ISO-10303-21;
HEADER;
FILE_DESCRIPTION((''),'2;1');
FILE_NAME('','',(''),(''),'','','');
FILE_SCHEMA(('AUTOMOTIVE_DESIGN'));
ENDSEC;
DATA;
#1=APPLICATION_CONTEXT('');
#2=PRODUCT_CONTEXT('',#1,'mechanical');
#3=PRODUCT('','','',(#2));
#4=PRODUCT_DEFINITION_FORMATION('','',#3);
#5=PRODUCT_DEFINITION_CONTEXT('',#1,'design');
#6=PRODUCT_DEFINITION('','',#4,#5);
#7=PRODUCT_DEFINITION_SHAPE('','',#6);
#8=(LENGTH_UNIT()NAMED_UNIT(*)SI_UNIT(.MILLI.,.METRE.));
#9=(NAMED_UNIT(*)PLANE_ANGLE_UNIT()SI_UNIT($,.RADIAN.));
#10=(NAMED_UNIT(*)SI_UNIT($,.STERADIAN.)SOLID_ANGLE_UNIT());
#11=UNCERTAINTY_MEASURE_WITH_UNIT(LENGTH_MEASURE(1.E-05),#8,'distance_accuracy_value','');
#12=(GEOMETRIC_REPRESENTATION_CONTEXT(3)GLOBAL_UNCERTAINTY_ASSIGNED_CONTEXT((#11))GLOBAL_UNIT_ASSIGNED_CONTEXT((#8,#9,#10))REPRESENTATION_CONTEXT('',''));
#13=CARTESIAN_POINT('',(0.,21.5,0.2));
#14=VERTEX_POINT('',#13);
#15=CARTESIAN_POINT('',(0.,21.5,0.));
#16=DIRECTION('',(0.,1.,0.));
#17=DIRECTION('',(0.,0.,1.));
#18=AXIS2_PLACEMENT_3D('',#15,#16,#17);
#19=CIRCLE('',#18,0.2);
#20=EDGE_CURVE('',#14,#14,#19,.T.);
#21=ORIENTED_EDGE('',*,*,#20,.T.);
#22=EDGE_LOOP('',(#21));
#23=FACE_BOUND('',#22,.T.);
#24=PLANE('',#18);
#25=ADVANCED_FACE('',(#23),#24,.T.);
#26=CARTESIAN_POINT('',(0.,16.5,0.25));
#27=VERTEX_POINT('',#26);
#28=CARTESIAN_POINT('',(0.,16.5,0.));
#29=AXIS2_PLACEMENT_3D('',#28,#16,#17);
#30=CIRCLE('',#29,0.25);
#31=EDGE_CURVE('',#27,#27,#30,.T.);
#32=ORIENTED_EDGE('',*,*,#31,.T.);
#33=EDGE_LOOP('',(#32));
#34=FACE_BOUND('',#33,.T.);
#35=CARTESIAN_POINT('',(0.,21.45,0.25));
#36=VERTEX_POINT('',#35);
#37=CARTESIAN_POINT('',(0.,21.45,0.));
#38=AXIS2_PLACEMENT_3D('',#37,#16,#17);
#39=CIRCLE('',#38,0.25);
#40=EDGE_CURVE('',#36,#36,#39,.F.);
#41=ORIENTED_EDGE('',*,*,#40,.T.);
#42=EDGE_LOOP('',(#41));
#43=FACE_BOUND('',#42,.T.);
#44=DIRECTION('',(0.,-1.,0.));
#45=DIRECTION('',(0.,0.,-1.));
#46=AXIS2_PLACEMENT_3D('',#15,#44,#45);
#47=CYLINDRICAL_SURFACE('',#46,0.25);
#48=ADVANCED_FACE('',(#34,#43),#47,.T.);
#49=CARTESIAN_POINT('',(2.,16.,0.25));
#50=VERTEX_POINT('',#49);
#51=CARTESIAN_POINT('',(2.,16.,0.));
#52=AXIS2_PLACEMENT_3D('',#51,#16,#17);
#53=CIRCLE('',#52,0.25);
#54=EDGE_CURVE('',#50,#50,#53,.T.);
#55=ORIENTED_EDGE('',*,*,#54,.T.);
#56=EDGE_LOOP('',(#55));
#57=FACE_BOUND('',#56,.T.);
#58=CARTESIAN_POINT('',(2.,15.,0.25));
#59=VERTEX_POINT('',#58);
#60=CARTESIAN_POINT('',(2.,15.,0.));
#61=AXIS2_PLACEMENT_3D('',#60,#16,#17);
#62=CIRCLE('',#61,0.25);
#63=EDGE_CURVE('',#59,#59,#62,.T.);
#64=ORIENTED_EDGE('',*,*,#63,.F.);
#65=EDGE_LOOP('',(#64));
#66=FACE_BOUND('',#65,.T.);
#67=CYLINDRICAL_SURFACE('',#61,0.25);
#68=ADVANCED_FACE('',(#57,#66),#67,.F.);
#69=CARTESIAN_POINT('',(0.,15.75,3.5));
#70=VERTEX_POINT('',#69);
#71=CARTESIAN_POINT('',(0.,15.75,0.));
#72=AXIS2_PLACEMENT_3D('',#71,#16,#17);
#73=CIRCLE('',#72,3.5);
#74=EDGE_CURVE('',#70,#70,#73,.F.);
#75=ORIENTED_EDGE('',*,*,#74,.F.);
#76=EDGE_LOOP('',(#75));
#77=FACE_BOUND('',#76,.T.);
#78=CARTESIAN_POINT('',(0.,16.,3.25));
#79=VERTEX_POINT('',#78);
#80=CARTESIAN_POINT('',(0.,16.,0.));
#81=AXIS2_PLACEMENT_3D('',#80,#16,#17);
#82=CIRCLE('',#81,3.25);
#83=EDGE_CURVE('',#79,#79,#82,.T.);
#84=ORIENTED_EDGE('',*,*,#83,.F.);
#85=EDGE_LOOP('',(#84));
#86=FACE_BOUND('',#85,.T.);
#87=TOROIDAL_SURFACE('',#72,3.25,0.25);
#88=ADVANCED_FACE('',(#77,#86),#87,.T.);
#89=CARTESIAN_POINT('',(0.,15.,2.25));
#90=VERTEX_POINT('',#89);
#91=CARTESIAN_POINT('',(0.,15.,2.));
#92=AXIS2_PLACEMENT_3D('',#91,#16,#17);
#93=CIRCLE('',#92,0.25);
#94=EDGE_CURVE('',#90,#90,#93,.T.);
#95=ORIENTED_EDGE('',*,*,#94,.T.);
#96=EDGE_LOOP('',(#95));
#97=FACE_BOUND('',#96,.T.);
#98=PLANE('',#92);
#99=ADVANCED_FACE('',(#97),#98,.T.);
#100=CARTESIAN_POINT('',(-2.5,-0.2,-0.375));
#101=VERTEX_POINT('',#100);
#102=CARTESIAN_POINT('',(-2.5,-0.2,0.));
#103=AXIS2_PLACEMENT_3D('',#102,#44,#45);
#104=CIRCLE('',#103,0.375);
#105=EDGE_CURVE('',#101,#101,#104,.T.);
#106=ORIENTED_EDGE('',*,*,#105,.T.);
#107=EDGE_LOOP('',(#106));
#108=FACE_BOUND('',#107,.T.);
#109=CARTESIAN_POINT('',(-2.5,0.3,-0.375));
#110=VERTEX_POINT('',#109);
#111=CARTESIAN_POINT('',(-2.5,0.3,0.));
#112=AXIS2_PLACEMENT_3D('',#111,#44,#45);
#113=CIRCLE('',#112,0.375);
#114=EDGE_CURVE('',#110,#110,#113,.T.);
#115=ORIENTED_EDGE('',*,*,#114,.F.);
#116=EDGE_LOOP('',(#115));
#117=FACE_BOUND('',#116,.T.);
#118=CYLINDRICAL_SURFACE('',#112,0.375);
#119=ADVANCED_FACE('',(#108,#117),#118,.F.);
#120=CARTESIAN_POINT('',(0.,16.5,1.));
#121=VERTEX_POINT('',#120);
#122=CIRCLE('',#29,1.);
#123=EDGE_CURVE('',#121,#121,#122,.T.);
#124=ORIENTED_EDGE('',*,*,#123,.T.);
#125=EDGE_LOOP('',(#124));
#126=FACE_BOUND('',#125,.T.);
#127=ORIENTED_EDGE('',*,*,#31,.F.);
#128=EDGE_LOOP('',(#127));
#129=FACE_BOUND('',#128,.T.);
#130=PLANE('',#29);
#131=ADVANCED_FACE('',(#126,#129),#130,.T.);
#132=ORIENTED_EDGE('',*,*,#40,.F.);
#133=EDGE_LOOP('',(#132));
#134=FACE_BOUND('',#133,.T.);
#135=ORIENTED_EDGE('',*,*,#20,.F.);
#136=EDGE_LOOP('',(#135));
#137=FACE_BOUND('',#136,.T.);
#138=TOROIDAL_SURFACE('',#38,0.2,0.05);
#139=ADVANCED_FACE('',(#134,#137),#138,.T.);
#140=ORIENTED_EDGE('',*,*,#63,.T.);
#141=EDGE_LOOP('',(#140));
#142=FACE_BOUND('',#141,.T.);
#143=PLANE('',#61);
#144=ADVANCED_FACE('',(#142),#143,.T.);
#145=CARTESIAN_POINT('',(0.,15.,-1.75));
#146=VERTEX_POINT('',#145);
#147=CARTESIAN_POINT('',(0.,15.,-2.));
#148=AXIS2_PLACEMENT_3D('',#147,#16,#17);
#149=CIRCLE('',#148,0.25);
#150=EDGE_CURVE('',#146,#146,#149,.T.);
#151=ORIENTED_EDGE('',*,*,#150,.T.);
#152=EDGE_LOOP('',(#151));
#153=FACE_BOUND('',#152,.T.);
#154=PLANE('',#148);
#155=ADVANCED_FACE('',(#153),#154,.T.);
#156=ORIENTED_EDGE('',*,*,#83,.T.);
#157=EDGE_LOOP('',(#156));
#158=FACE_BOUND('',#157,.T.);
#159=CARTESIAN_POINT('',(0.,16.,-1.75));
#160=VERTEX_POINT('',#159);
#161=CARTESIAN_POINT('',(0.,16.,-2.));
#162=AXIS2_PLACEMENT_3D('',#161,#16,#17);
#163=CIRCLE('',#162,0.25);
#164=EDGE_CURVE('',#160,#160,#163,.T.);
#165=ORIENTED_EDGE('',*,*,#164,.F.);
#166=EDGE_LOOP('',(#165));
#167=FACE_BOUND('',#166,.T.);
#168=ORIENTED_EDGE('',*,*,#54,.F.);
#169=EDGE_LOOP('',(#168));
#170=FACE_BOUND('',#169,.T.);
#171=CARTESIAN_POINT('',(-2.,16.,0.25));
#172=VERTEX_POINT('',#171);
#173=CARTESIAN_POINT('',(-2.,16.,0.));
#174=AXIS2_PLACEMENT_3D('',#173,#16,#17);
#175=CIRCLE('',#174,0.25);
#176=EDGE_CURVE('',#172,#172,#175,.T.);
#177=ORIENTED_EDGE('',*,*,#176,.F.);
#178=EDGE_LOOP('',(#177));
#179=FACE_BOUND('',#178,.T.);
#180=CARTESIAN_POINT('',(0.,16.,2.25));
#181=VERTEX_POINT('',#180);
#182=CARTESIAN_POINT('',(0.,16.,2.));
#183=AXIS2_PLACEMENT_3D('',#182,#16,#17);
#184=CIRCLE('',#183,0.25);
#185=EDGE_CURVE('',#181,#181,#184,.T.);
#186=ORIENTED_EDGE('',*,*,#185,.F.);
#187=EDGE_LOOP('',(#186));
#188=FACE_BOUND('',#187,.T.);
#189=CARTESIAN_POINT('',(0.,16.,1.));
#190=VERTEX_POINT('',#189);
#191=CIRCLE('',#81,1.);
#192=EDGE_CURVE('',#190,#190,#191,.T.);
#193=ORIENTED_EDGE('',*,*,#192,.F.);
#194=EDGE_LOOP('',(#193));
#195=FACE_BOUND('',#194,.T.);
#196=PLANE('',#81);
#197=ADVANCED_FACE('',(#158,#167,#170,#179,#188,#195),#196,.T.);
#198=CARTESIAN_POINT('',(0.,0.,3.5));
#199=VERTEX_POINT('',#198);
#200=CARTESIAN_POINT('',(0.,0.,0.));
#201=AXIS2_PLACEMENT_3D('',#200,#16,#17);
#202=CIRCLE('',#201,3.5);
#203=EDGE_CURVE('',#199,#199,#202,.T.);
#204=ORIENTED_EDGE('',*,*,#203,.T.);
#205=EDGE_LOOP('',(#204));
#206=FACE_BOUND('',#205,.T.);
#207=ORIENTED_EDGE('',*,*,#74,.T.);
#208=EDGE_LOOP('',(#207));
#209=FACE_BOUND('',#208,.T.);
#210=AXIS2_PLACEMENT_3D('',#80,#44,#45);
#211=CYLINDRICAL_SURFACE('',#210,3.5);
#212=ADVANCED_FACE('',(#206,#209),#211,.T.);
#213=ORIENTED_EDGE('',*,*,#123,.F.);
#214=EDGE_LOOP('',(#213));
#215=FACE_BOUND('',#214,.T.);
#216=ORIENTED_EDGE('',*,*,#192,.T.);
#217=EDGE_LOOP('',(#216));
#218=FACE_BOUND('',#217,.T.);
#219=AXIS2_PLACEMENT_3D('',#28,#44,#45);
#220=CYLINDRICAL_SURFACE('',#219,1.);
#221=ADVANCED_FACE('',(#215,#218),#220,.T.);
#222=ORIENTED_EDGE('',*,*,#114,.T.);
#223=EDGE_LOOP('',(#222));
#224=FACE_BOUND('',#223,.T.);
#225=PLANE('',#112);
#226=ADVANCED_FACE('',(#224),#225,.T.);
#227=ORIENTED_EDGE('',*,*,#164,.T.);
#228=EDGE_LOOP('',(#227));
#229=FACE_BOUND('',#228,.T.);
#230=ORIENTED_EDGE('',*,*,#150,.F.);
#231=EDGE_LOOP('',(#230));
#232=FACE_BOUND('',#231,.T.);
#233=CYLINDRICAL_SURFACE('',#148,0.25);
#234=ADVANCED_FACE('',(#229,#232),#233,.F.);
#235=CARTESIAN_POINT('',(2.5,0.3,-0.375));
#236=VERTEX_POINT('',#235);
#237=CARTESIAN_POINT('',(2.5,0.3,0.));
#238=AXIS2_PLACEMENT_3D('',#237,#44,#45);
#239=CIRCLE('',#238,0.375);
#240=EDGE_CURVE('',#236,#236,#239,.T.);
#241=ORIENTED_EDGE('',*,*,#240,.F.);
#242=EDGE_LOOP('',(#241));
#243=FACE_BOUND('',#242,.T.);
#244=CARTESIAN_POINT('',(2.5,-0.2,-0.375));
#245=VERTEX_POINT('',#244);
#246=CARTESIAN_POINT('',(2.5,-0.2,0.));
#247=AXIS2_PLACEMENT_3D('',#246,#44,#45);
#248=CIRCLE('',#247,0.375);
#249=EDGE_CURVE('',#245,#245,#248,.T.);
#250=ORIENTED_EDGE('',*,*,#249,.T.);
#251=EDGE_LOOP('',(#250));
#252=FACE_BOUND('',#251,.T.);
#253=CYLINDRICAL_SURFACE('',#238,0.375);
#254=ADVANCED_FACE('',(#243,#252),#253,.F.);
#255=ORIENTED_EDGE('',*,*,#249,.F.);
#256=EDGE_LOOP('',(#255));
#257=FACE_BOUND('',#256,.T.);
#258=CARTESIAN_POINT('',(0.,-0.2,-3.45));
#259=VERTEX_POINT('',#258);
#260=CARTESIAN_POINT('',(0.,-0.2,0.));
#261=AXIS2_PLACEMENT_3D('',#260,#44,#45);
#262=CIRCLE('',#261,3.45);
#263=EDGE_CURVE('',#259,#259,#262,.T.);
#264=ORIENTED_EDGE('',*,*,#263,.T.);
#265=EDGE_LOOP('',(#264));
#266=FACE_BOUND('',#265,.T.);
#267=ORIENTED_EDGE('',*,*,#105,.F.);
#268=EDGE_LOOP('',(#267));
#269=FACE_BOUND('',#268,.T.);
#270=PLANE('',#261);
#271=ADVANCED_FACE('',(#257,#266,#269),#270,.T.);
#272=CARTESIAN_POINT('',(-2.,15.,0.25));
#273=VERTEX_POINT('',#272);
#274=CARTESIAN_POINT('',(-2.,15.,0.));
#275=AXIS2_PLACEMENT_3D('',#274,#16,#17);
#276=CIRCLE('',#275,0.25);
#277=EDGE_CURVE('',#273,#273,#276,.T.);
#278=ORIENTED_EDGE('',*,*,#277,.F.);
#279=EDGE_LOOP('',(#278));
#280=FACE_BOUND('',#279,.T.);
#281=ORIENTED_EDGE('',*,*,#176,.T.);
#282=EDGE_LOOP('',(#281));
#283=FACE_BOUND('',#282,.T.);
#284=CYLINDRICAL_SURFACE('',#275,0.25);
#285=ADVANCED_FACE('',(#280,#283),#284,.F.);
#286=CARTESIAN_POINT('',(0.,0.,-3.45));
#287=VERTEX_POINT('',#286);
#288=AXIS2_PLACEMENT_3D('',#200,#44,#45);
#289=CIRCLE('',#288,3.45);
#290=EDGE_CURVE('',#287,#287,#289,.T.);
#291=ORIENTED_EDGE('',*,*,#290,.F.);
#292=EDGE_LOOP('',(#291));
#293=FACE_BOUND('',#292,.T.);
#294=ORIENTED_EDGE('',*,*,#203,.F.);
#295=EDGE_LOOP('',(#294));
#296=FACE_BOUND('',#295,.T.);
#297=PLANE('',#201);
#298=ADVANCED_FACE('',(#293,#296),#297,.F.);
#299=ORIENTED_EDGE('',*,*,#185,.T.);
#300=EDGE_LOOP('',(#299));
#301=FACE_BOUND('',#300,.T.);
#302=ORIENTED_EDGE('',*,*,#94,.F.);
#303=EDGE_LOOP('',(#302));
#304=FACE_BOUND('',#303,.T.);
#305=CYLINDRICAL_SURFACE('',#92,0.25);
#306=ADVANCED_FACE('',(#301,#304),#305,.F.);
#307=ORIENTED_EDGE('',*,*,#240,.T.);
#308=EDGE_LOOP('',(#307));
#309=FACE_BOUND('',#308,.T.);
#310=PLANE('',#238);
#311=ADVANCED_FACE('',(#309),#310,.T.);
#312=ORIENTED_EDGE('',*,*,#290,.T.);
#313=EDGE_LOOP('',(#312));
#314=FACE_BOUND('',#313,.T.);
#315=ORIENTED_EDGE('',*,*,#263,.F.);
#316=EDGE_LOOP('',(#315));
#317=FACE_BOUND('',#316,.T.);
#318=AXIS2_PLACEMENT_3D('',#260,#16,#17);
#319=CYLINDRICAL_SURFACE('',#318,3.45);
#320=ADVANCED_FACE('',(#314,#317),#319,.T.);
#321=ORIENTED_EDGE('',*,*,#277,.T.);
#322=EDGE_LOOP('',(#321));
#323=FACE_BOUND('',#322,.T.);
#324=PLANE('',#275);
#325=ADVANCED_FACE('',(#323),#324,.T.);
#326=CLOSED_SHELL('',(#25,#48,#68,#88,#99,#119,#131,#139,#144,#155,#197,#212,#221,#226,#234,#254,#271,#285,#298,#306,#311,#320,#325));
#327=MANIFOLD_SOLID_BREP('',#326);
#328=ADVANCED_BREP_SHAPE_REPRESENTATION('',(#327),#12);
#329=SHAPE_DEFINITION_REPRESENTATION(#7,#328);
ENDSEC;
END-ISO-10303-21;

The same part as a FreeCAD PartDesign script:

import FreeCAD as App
import Part
import Sketcher


def edges_at(feature, points):
    """Names of the edges that pass closest to the given points."""
    edges = feature.Shape.Edges
    near = lambda p: min(range(len(edges)), key=lambda i: edges[i].distToShape(Part.Vertex(*p))[0])
    return sorted({f"Edge{near(p) + 1}" for p in points})

doc = App.newDocument("Part")
body = doc.addObject("PartDesign::Body", "Body")

sketch1 = doc.addObject("Sketcher::SketchObject", "Sketch")
body.addObject(sketch1)
sketch1.AttachmentSupport = (doc.XZ_Plane, [""])
sketch1.MapMode = "FlatFace"
sketch1.addGeometry(Part.Circle(App.Vector(0, 0, 0), App.Vector(0, 0, 1), 3.5), False)
sketch1.addConstraint(Sketcher.Constraint("Coincident", 0, 3, -1, 1))
sketch1.addConstraint(Sketcher.Constraint("Diameter", 0, 7.0))
pad1 = doc.addObject("PartDesign::Pad", "Pad")
body.addObject(pad1)
pad1.Profile = sketch1
pad1.Length = 16
pad1.Reversed = True

sketch2 = doc.addObject("Sketcher::SketchObject", "Sketch001")
body.addObject(sketch2)
sketch2.AttachmentSupport = (doc.XZ_Plane, [""])
sketch2.MapMode = "FlatFace"
sketch2.addGeometry(Part.Circle(App.Vector(0, 0, 0), App.Vector(0, 0, 1), 3.5), False)
sketch2.addConstraint(Sketcher.Constraint("Coincident", 0, 3, -1, 1))
sketch2.addConstraint(Sketcher.Constraint("Diameter", 0, 6.9))
pad2 = doc.addObject("PartDesign::Pad", "Pad001")
body.addObject(pad2)
pad2.Profile = sketch2
pad2.Length = 0.2

sketch3 = doc.addObject("Sketcher::SketchObject", "Sketch002")
body.addObject(sketch3)
sketch3.AttachmentSupport = (doc.XZ_Plane, [""])
sketch3.MapMode = "FlatFace"
sketch3.AttachmentOffset = App.Placement(App.Vector(0, 0, 0.2), App.Rotation())
sketch3.addGeometry(Part.Circle(App.Vector(-2.5, 0, 0), App.Vector(0, 0, 1), 0.38), False)
sketch3.addGeometry(Part.Circle(App.Vector(2.5, 0, 0), App.Vector(0, 0, 1), 0.38), False)
sketch3.addConstraint(Sketcher.Constraint("Equal", 0, 1))
sketch3.addConstraint(Sketcher.Constraint("Symmetric", 0, 3, 1, 3, -1, 1))
sketch3.addConstraint(Sketcher.Constraint("PointOnObject", 0, 3, -1))
sketch3.addConstraint(Sketcher.Constraint("Diameter", 0, 0.75))
sketch3.addConstraint(Sketcher.Constraint("DistanceX", 0, 3, 1, 3, 5.0))
pocket1 = doc.addObject("PartDesign::Pocket", "Pocket")
body.addObject(pocket1)
pocket1.Profile = sketch3
pocket1.Length = 0.5

sketch4 = doc.addObject("Sketcher::SketchObject", "Sketch003")
body.addObject(sketch4)
sketch4.AttachmentSupport = (doc.XZ_Plane, [""])
sketch4.MapMode = "FlatFace"
sketch4.AttachmentOffset = App.Placement(App.Vector(0, 0, -16), App.Rotation())
sketch4.addGeometry(Part.Circle(App.Vector(0, 0, 0), App.Vector(0, 0, 1), 1), False)
sketch4.addConstraint(Sketcher.Constraint("Coincident", 0, 3, -1, 1))
sketch4.addConstraint(Sketcher.Constraint("Diameter", 0, 2.0))
pad3 = doc.addObject("PartDesign::Pad", "Pad002")
body.addObject(pad3)
pad3.Profile = sketch4
pad3.Length = 0.5
pad3.Reversed = True

sketch5 = doc.addObject("Sketcher::SketchObject", "Sketch004")
body.addObject(sketch5)
sketch5.AttachmentSupport = (doc.XZ_Plane, [""])
sketch5.MapMode = "FlatFace"
sketch5.AttachmentOffset = App.Placement(App.Vector(0, 0, -16.5), App.Rotation())
sketch5.addGeometry(Part.Circle(App.Vector(0, 0, 0), App.Vector(0, 0, 1), 0.25), False)
sketch5.addConstraint(Sketcher.Constraint("Coincident", 0, 3, -1, 1))
sketch5.addConstraint(Sketcher.Constraint("Diameter", 0, 0.5))
pad4 = doc.addObject("PartDesign::Pad", "Pad003")
body.addObject(pad4)
pad4.Profile = sketch5
pad4.Length = 5
pad4.Reversed = True
doc.recompute()

fillet = doc.addObject("PartDesign::Fillet", "Fillet")
body.addObject(fillet)
fillet.Base = (pad4, edges_at(pad4, [(0, 16, -3.5)]))
fillet.Radius = 0.25
doc.recompute()

fillet2 = doc.addObject("PartDesign::Fillet", "Fillet001")
body.addObject(fillet2)
fillet2.Base = (fillet, edges_at(fillet, [(0, 21.5, -0.25)]))
fillet2.Radius = 0.05

sketch6 = doc.addObject("Sketcher::SketchObject", "Sketch005")
body.addObject(sketch6)
sketch6.AttachmentSupport = (doc.XZ_Plane, [""])
sketch6.MapMode = "FlatFace"
sketch6.AttachmentOffset = App.Placement(App.Vector(0, 0, -16), App.Rotation())
sketch6.addGeometry(Part.Circle(App.Vector(0, -2, 0), App.Vector(0, 0, 1), 0.25), False)
sketch6.addGeometry(Part.Circle(App.Vector(2, 0, 0), App.Vector(0, 0, 1), 0.25), False)
sketch6.addGeometry(Part.Circle(App.Vector(0, 2, 0), App.Vector(0, 0, 1), 0.25), False)
sketch6.addGeometry(Part.Circle(App.Vector(-2, 0, 0), App.Vector(0, 0, 1), 0.25), False)
sketch6.addConstraint(Sketcher.Constraint("Equal", 0, 1))
sketch6.addConstraint(Sketcher.Constraint("Equal", 1, 2))
sketch6.addConstraint(Sketcher.Constraint("Equal", 2, 3))
sketch6.addConstraint(Sketcher.Constraint("Symmetric", 0, 3, 2, 3, -1, 1))
sketch6.addConstraint(Sketcher.Constraint("Symmetric", 1, 3, 3, 3, -1, 1))
sketch6.addConstraint(Sketcher.Constraint("PointOnObject", 0, 3, -2))
sketch6.addConstraint(Sketcher.Constraint("PointOnObject", 1, 3, -1))
sketch6.addConstraint(Sketcher.Constraint("Diameter", 0, 0.5))
sketch6.addConstraint(Sketcher.Constraint("DistanceY", 0, 3, -1, 1, 2.0))
sketch6.addConstraint(Sketcher.Constraint("DistanceX", -1, 1, 1, 3, 2.0))
pocket2 = doc.addObject("PartDesign::Pocket", "Pocket001")
body.addObject(pocket2)
pocket2.Profile = sketch6
pocket2.Length = 1
pocket2.Reversed = True

doc.recompute()
